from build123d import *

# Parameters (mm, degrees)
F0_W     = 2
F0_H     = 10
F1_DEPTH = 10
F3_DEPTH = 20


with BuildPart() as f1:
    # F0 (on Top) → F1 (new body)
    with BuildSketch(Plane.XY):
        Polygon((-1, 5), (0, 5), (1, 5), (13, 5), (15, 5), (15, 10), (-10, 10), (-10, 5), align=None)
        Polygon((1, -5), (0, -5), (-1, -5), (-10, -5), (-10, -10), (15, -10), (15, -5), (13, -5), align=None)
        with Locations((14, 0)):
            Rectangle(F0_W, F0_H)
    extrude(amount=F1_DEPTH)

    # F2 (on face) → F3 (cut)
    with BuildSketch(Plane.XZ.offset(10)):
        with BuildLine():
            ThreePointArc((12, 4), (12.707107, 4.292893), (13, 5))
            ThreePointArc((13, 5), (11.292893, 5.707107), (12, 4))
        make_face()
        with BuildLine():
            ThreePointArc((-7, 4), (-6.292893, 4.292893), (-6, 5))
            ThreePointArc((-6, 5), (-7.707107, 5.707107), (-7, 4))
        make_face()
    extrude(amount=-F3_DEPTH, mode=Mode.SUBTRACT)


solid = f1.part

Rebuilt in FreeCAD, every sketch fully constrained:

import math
import FreeCAD as App
import Part
import Sketcher

V = App.Vector
Q = App.Units.Quantity

doc = App.newDocument("Part")
body = doc.addObject("PartDesign::Body", "Body")

# Sketch on XY plane
sketch1 = body.newObject("Sketcher::SketchObject", "Sketch")
sketch1.AttachmentSupport = (doc.getObject("XY_Plane"), [""])
sketch1.MapMode = "FlatFace"
sketch1.addGeometry([
    Part.LineSegment(V(15, 10, 0), V(-10, 10, 0)),  # 0
    Part.LineSegment(V(-10, 10, 0), V(-10, 5, 0)),  # 1
    Part.LineSegment(V(-10, 5, 0), V(13, 5, 0)),  # 2
    Part.LineSegment(V(13, 5, 0), V(13, -5, 0)),  # 3
    Part.LineSegment(V(13, -5, 0), V(-10, -5, 0)),  # 4
    Part.LineSegment(V(-10, -5, 0), V(-10, -10, 0)),  # 5
    Part.LineSegment(V(-10, -10, 0), V(15, -10, 0)),  # 6
    Part.LineSegment(V(15, -10, 0), V(15, 10, 0)),  # 7
], False)
sketch1.addConstraint([
    Sketcher.Constraint("Coincident", 0, 2, 1, 1),
    Sketcher.Constraint("Coincident", 1, 2, 2, 1),
    Sketcher.Constraint("Coincident", 2, 2, 3, 1),
    Sketcher.Constraint("Coincident", 3, 2, 4, 1),
    Sketcher.Constraint("Coincident", 4, 2, 5, 1),
    Sketcher.Constraint("Coincident", 5, 2, 6, 1),
    Sketcher.Constraint("Coincident", 6, 2, 7, 1),
    Sketcher.Constraint("Coincident", 7, 2, 0, 1),
    Sketcher.Constraint("Horizontal", 0),
    Sketcher.Constraint("Vertical", 1),
    Sketcher.Constraint("Horizontal", 2),
    Sketcher.Constraint("Vertical", 3),
    Sketcher.Constraint("Horizontal", 4),
    Sketcher.Constraint("Vertical", 5),
    Sketcher.Constraint("Horizontal", 6),
    Sketcher.Constraint("Vertical", 7),
    Sketcher.Constraint("Symmetric", 1, 2, 4, 2, -1),
    Sketcher.Constraint("Equal", 1, 5),
    Sketcher.Constraint("DistanceX", 0, 2, 0, 1, Q("25 mm")),
    Sketcher.Constraint("DistanceX", 2, 1, 2, 2, Q("23 mm")),
    Sketcher.Constraint("DistanceY", 1, 2, 1, 1, Q("5 mm")),
    Sketcher.Constraint("DistanceY", 3, 2, 3, 1, Q("10 mm")),
    Sketcher.Constraint("DistanceX", 0, 2, -1, 1, Q("10 mm")),
])
pad1 = body.newObject("PartDesign::Pad", "Pad")
pad1.Profile = sketch1
pad1.Length = 10

# Sketch on XZ plane
sketch2 = body.newObject("Sketcher::SketchObject", "Sketch001")
sketch2.AttachmentSupport = (doc.getObject("XZ_Plane"), [""])
sketch2.MapMode = "FlatFace"
sketch2.AttachmentOffset = App.Placement(V(0, 0, 10), App.Rotation())
sketch2.addGeometry([
    Part.ArcOfCircle(Part.Circle(V(12, 5, 0), V(0, 0, 1), 1), math.radians(-90), math.radians(0)),
    Part.ArcOfCircle(Part.Circle(V(12, 5, 0), V(0, 0, 1), 1), math.radians(0), math.radians(270)),
    Part.ArcOfCircle(Part.Circle(V(-7, 5, 0), V(0, 0, 1), 1), math.radians(-90), math.radians(0)),
    Part.ArcOfCircle(Part.Circle(V(-7, 5, 0), V(0, 0, 1), 1), math.radians(0), math.radians(270)),
], False)
sketch2.addConstraint([
    Sketcher.Constraint("Tangent", 0, 1, 1, 2),
    Sketcher.Constraint("Coincident", 1, 1, 0, 2),
    Sketcher.Constraint("Tangent", 2, 1, 3, 2),
    Sketcher.Constraint("Coincident", 3, 1, 2, 2),
    Sketcher.Constraint("Equal", 1, 2),
    Sketcher.Constraint("Horizontal", 1, 3, 2, 3),
    Sketcher.Constraint("Horizontal", 3, 3, 1, 1),
    Sketcher.Constraint("Horizontal", 1, 1, 3, 1),
    Sketcher.Constraint("Vertical", 1, 3, 0, 1),
    Sketcher.Constraint("Vertical", 3, 3, 2, 1),
    Sketcher.Constraint("Radius", 0, Q("0.999999 mm")),
    Sketcher.Constraint("DistanceX", -1, 1, 0, 3, Q("12.000001 mm")),
    Sketcher.Constraint("DistanceY", -1, 1, 0, 3, Q("4.999999 mm")),
    Sketcher.Constraint("DistanceX", 2, 3, -1, 1, Q("6.999999 mm")),
])
pocket1 = body.newObject("PartDesign::Pocket", "Pocket")
pocket1.Profile = sketch2
pocket1.Length = 20

doc.recompute()
